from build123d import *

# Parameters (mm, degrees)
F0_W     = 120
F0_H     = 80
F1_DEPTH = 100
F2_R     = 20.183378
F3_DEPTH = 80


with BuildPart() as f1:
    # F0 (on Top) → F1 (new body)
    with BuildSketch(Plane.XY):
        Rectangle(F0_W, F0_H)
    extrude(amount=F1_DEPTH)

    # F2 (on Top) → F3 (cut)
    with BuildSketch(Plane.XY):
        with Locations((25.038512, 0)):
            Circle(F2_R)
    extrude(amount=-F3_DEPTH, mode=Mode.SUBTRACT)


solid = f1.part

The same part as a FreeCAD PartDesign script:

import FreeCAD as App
import Part
import Sketcher

V = App.Vector

doc = App.newDocument("Part")
params = doc.addObject("Spreadsheet::Sheet", "Params")
for row, (alias, value) in enumerate([
    ("sketch1_width", "120 mm"),
    ("sketch1_height", "80 mm"),
    ("pad1_length", "100 mm"),
    ("pocket1_length", "80 mm"),
], start=1):
    params.set(f"A{row}", alias)
    params.set(f"B{row}", "=" + value)
    params.setAlias(f"B{row}", alias)

body = doc.addObject("PartDesign::Body", "Body")

sketch1 = body.newObject("Sketcher::SketchObject", "Sketch")
sketch1.AttachmentSupport = (doc.getObject("XY_Plane"), [""])
sketch1.MapMode = "FlatFace"
sketch1.addGeometry([
    Part.LineSegment(V(-60, 40, 0), V(-60, -40, 0)),
    Part.LineSegment(V(-60, -40, 0), V(60, -40, 0)),
    Part.LineSegment(V(60, -40, 0), V(60, 40, 0)),
    Part.LineSegment(V(60, 40, 0), V(-60, 40, 0)),
], False)
sketch1.addConstraint([
    Sketcher.Constraint("Coincident", 0, 2, 1, 1),
    Sketcher.Constraint("Coincident", 1, 2, 2, 1),
    Sketcher.Constraint("Coincident", 2, 2, 3, 1),
    Sketcher.Constraint("Coincident", 3, 2, 0, 1),
    Sketcher.Constraint("Vertical", 0),
    Sketcher.Constraint("Horizontal", 1),
    Sketcher.Constraint("Vertical", 2),
    Sketcher.Constraint("Horizontal", 3),
    Sketcher.Constraint("Symmetric", 0, 2, 2, 2, -1, 1),
    Sketcher.Constraint("DistanceX", 1, 1, 1, 2, 120.0),
    Sketcher.Constraint("DistanceY", 0, 2, 0, 1, 80.0),
])
sketch1.setExpression("Constraints[9]", "Params.sketch1_width")
sketch1.setExpression("Constraints[10]", "Params.sketch1_height")
pad1 = body.newObject("PartDesign::Pad", "Pad")
pad1.Profile = sketch1
pad1.setExpression("Length", "Params.pad1_length")

sketch2 = body.newObject("Sketcher::SketchObject", "Sketch001")
sketch2.AttachmentSupport = (doc.getObject("XY_Plane"), [""])
sketch2.MapMode = "FlatFace"
sketch2.addGeometry(Part.Circle(V(25.038512, 0, 0), V(0, 0, 1), 20.183378), False)
sketch2.addConstraint([
    Sketcher.Constraint("PointOnObject", 0, 3, -1),
    Sketcher.Constraint("Diameter", 0, 40.366756),
    Sketcher.Constraint("DistanceX", -1, 1, 0, 3, 25.038512),
])
pocket1 = body.newObject("PartDesign::Pocket", "Pocket")
pocket1.Profile = sketch2
pocket1.setExpression("Length", "Params.pocket1_length")

doc.recompute()
